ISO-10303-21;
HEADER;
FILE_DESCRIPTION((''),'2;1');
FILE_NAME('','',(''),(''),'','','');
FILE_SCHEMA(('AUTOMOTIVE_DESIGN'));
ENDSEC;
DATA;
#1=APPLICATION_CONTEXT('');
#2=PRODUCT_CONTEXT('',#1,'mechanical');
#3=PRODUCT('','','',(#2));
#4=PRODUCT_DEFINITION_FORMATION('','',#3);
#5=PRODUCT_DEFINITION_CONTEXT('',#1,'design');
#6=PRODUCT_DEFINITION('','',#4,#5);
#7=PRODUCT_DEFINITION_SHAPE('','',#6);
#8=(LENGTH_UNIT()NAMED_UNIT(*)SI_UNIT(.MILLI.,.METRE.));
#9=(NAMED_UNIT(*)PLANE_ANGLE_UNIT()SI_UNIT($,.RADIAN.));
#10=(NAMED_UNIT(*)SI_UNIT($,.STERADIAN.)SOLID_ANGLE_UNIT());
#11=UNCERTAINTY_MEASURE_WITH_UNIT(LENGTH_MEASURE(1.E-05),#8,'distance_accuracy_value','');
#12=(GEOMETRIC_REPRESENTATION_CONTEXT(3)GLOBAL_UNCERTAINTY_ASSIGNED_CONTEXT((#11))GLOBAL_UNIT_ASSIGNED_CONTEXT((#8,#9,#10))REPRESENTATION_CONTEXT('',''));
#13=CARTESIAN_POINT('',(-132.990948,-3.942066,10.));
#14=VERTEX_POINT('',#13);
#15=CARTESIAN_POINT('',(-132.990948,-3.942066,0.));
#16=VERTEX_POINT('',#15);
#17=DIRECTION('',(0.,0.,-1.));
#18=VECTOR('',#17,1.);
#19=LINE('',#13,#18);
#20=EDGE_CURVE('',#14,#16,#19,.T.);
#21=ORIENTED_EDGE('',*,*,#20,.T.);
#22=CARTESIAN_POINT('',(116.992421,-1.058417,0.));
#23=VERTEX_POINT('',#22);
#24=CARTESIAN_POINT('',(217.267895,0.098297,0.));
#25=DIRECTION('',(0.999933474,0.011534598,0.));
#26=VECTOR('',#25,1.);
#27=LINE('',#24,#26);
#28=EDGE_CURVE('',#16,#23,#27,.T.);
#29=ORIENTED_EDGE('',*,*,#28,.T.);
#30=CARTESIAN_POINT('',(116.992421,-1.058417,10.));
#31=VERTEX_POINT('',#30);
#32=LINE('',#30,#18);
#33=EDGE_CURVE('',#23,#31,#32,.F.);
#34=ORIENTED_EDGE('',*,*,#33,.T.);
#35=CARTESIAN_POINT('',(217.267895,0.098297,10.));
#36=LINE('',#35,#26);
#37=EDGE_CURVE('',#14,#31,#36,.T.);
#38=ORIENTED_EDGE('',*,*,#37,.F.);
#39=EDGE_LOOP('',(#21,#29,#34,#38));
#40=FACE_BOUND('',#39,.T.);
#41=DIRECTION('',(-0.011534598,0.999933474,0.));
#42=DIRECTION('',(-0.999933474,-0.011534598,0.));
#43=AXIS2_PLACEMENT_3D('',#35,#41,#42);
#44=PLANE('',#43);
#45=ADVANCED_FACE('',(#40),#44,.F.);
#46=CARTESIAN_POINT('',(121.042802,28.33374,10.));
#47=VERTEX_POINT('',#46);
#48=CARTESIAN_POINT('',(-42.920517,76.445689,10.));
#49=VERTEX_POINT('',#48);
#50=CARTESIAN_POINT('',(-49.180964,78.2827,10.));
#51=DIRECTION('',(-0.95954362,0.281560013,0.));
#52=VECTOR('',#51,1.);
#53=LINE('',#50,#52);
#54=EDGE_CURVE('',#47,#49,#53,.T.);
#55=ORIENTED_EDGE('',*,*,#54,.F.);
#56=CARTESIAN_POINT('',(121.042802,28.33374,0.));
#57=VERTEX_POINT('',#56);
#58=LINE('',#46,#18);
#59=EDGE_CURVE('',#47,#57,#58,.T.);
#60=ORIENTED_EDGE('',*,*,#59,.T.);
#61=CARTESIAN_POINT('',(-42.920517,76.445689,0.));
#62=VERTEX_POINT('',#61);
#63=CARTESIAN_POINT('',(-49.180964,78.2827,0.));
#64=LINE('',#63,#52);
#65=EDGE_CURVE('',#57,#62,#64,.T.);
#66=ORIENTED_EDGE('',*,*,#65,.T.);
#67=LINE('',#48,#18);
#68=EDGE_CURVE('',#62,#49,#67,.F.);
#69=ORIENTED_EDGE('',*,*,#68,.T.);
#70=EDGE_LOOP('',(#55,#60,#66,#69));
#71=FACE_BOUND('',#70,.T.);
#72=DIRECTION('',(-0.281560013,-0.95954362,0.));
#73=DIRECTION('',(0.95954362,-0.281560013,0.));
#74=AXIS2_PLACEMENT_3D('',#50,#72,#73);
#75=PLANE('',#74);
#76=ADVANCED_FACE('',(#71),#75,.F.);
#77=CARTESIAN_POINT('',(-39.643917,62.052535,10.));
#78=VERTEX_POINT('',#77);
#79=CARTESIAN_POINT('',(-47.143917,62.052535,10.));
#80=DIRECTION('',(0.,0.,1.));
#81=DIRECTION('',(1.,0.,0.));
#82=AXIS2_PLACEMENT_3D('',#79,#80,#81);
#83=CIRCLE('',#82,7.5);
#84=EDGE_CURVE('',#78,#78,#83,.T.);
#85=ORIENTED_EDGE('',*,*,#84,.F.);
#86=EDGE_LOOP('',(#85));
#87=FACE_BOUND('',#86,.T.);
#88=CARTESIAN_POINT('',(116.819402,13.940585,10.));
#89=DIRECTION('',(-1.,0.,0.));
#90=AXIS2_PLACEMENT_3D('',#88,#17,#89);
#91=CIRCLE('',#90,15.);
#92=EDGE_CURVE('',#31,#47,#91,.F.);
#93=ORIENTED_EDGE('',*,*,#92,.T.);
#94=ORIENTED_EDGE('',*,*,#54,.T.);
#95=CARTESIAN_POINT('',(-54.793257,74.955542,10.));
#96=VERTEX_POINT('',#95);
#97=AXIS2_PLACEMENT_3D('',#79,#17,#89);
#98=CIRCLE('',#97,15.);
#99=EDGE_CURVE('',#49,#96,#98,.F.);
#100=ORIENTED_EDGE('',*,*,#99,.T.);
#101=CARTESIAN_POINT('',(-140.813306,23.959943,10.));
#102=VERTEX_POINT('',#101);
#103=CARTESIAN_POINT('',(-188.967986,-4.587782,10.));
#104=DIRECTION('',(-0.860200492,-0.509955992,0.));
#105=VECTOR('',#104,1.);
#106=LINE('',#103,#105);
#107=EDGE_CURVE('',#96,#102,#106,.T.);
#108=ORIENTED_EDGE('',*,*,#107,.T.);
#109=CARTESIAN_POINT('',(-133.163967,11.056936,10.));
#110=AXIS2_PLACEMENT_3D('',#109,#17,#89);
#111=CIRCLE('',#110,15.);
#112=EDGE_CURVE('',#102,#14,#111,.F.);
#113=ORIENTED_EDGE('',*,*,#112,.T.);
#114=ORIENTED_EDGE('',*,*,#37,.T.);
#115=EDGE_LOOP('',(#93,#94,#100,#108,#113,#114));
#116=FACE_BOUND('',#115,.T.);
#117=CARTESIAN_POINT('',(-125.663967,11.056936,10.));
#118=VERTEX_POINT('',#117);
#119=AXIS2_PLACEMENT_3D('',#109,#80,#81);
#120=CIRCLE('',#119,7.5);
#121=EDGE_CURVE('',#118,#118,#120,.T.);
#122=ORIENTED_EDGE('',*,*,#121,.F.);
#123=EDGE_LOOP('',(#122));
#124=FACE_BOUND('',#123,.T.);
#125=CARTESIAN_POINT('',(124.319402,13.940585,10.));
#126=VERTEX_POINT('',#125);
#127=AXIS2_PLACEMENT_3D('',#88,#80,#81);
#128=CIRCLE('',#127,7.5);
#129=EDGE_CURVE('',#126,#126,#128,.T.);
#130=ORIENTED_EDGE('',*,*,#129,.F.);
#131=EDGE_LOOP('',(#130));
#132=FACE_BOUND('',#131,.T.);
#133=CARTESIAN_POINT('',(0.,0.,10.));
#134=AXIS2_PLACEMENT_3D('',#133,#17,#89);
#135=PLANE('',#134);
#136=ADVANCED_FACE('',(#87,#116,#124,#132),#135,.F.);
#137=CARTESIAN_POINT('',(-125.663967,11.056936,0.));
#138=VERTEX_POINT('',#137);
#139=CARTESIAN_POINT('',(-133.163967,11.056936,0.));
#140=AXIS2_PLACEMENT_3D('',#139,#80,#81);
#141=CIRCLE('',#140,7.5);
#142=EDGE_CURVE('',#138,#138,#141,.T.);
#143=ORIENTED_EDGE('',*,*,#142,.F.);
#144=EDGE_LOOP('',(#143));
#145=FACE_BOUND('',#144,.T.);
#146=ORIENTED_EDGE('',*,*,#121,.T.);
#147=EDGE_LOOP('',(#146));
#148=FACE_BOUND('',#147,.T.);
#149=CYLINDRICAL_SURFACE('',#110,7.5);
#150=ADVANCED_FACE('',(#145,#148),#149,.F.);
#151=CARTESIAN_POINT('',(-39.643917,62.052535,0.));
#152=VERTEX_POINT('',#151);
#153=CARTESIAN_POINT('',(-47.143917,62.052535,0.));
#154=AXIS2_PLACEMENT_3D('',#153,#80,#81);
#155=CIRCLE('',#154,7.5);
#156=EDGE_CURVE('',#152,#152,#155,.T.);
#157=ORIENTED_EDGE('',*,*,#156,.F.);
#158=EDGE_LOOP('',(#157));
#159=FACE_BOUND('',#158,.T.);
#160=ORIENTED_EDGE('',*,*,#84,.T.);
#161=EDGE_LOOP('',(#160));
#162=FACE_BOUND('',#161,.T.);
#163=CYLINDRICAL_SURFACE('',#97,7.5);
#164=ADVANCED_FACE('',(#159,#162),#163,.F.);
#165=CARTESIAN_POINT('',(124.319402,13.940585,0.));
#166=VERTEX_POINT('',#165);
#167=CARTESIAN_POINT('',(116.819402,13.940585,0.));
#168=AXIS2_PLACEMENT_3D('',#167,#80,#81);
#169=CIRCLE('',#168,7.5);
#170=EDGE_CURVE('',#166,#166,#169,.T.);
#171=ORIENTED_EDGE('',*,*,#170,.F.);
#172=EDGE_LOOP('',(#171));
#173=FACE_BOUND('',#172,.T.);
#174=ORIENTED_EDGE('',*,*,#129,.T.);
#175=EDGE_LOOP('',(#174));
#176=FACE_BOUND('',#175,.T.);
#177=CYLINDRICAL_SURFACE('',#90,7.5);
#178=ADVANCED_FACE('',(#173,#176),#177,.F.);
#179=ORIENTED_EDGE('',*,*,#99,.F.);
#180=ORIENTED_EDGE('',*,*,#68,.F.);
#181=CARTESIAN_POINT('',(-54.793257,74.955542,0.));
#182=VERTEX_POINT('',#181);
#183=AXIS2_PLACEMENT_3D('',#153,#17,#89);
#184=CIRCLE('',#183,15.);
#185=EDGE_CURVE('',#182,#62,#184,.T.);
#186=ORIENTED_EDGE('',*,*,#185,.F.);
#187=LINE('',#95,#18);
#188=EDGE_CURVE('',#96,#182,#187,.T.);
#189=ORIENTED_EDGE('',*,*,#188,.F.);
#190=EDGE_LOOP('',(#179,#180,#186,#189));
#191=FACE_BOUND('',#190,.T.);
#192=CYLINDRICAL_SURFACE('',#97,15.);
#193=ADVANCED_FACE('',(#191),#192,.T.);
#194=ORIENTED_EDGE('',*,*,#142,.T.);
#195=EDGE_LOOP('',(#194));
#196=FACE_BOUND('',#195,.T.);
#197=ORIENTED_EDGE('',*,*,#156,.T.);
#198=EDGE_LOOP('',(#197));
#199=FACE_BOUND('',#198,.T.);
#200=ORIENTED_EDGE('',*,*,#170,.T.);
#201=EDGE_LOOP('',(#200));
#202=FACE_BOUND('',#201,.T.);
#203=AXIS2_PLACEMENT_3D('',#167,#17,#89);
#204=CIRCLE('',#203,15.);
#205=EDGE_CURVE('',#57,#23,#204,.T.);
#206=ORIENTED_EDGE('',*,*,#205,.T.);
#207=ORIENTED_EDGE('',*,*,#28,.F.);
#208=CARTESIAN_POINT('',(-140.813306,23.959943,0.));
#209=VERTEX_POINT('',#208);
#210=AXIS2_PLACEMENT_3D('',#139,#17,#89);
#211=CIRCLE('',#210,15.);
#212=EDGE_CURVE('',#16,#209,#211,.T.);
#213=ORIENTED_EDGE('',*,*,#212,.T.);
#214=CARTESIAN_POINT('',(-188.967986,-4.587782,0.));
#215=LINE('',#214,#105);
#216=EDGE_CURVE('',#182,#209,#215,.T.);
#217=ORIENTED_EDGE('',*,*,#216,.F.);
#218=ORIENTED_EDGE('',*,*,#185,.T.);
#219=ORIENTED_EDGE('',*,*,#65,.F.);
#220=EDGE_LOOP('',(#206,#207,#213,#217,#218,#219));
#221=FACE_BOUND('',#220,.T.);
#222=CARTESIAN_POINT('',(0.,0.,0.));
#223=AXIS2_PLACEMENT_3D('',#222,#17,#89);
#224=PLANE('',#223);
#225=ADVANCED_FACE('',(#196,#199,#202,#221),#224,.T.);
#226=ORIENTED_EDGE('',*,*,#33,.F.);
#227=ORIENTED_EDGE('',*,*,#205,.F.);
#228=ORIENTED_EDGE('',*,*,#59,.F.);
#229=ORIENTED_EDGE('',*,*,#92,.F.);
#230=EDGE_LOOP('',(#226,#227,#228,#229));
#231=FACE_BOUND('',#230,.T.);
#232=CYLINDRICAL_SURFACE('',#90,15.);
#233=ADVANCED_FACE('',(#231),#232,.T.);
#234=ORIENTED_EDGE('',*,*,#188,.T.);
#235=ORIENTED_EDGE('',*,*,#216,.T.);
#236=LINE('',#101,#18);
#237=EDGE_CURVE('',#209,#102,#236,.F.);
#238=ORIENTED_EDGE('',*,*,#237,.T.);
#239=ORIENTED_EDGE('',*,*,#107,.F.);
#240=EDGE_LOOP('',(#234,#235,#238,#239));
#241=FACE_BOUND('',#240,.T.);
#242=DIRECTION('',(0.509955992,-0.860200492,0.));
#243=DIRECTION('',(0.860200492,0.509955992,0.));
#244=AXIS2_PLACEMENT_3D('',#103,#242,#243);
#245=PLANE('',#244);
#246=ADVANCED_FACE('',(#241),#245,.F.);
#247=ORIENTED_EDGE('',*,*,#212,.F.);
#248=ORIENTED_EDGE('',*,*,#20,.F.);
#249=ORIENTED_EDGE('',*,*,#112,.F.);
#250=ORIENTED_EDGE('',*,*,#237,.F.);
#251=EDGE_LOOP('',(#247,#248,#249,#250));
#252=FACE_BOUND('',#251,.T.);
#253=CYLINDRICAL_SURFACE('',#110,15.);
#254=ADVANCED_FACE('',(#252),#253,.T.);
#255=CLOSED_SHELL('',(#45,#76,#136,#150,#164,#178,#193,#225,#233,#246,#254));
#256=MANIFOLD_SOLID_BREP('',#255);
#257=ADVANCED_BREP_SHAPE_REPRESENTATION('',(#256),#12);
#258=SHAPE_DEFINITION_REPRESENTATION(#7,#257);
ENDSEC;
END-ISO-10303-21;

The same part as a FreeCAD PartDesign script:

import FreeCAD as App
import Part
import Sketcher
from FreeCAD import Vector
Q = App.Units.Quantity


def edges_at(feature, points):
    """Names of the edges that pass closest to the given points."""
    edges = feature.Shape.Edges
    near = lambda p: min(range(len(edges)), key=lambda i: edges[i].distToShape(Part.Vertex(*p))[0])
    return sorted({f"Edge{near(p) + 1}" for p in points})

doc = App.newDocument("Part")
body = doc.addObject("PartDesign::Body", "Body")

sketch1 = body.newObject("Sketcher::SketchObject", "Sketch")
sketch1.AttachmentSupport = (doc.getObject("XY_Plane"), [""])
sketch1.MapMode = "FlatFace"
sketch1.addGeometry([
    Part.LineSegment(Vector(-49, 78, 0), Vector(-189, -5, 0)),
    Part.LineSegment(Vector(-189, -5, 0), Vector(217, 0, 0)),
    Part.LineSegment(Vector(217, 0, 0), Vector(-49, 78, 0)),
    Part.Circle(Vector(117, 14, 0), Vector(0, 0, 1), 8),
    Part.Circle(Vector(-133, 11, 0), Vector(0, 0, 1), 8),
    Part.Circle(Vector(-47, 62, 0), Vector(0, 0, 1), 8),
], False)
sketch1.addConstraint([
    Sketcher.Constraint("Coincident", 0, 2, 1, 1),
    Sketcher.Constraint("Coincident", 1, 2, 2, 1),
    Sketcher.Constraint("Coincident", 2, 2, 0, 1),
    Sketcher.Constraint("Equal", 3, 4),
    Sketcher.Constraint("Equal", 4, 5),
    Sketcher.Constraint("Diameter", 3, Q("15 mm")),
    Sketcher.Constraint("DistanceY", -1, 1, 2, 2, Q("78.2827 mm")),
    Sketcher.Constraint("DistanceY", 4, 3, 5, 3, Q("50.995599 mm")),
    Sketcher.Constraint("DistanceY", 0, 2, -1, 1, Q("4.587782 mm")),
    Sketcher.Constraint("DistanceX", 4, 3, 3, 3, Q("249.983369 mm")),
    Sketcher.Constraint("DistanceY", 4, 3, 3, 3, Q("2.883649 mm")),
    Sketcher.Constraint("DistanceX", 4, 3, 5, 3, Q("86.020049 mm")),
    Sketcher.Constraint("DistanceX", 0, 2, 4, 3, Q("55.804019 mm")),
    Sketcher.Constraint("DistanceX", 4, 3, 1, 2, Q("350.431862 mm")),
    Sketcher.Constraint("DistanceY", 1, 2, 4, 3, Q("10.958638 mm")),
    Sketcher.Constraint("DistanceY", 0, 2, 1, 2, Q("4.686079 mm")),
    Sketcher.Constraint("DistanceX", 0, 2, 2, 2, Q("139.787021 mm")),
    Sketcher.Constraint("DistanceX", -1, 1, 3, 3, Q("116.819402 mm")),
])
pad1 = body.newObject("PartDesign::Pad", "Pad")
pad1.Profile = sketch1
pad1.Length = 10
doc.recompute()

fillet = body.newObject("PartDesign::Fillet", "Fillet")
fillet.Base = (pad1, edges_at(pad1, [(217.268, 0.098, 5)]))
fillet.Radius = 15
doc.recompute()

fillet2 = body.newObject("PartDesign::Fillet", "Fillet001")
fillet2.Base = (fillet, edges_at(fillet, [(-49.181, 78.283, 5)]))
fillet2.Radius = 15
doc.recompute()

fillet3 = body.newObject("PartDesign::Fillet", "Fillet002")
fillet3.Base = (fillet2, edges_at(fillet2, [(-188.968, -4.588, 5)]))
fillet3.Radius = 15

doc.recompute()
